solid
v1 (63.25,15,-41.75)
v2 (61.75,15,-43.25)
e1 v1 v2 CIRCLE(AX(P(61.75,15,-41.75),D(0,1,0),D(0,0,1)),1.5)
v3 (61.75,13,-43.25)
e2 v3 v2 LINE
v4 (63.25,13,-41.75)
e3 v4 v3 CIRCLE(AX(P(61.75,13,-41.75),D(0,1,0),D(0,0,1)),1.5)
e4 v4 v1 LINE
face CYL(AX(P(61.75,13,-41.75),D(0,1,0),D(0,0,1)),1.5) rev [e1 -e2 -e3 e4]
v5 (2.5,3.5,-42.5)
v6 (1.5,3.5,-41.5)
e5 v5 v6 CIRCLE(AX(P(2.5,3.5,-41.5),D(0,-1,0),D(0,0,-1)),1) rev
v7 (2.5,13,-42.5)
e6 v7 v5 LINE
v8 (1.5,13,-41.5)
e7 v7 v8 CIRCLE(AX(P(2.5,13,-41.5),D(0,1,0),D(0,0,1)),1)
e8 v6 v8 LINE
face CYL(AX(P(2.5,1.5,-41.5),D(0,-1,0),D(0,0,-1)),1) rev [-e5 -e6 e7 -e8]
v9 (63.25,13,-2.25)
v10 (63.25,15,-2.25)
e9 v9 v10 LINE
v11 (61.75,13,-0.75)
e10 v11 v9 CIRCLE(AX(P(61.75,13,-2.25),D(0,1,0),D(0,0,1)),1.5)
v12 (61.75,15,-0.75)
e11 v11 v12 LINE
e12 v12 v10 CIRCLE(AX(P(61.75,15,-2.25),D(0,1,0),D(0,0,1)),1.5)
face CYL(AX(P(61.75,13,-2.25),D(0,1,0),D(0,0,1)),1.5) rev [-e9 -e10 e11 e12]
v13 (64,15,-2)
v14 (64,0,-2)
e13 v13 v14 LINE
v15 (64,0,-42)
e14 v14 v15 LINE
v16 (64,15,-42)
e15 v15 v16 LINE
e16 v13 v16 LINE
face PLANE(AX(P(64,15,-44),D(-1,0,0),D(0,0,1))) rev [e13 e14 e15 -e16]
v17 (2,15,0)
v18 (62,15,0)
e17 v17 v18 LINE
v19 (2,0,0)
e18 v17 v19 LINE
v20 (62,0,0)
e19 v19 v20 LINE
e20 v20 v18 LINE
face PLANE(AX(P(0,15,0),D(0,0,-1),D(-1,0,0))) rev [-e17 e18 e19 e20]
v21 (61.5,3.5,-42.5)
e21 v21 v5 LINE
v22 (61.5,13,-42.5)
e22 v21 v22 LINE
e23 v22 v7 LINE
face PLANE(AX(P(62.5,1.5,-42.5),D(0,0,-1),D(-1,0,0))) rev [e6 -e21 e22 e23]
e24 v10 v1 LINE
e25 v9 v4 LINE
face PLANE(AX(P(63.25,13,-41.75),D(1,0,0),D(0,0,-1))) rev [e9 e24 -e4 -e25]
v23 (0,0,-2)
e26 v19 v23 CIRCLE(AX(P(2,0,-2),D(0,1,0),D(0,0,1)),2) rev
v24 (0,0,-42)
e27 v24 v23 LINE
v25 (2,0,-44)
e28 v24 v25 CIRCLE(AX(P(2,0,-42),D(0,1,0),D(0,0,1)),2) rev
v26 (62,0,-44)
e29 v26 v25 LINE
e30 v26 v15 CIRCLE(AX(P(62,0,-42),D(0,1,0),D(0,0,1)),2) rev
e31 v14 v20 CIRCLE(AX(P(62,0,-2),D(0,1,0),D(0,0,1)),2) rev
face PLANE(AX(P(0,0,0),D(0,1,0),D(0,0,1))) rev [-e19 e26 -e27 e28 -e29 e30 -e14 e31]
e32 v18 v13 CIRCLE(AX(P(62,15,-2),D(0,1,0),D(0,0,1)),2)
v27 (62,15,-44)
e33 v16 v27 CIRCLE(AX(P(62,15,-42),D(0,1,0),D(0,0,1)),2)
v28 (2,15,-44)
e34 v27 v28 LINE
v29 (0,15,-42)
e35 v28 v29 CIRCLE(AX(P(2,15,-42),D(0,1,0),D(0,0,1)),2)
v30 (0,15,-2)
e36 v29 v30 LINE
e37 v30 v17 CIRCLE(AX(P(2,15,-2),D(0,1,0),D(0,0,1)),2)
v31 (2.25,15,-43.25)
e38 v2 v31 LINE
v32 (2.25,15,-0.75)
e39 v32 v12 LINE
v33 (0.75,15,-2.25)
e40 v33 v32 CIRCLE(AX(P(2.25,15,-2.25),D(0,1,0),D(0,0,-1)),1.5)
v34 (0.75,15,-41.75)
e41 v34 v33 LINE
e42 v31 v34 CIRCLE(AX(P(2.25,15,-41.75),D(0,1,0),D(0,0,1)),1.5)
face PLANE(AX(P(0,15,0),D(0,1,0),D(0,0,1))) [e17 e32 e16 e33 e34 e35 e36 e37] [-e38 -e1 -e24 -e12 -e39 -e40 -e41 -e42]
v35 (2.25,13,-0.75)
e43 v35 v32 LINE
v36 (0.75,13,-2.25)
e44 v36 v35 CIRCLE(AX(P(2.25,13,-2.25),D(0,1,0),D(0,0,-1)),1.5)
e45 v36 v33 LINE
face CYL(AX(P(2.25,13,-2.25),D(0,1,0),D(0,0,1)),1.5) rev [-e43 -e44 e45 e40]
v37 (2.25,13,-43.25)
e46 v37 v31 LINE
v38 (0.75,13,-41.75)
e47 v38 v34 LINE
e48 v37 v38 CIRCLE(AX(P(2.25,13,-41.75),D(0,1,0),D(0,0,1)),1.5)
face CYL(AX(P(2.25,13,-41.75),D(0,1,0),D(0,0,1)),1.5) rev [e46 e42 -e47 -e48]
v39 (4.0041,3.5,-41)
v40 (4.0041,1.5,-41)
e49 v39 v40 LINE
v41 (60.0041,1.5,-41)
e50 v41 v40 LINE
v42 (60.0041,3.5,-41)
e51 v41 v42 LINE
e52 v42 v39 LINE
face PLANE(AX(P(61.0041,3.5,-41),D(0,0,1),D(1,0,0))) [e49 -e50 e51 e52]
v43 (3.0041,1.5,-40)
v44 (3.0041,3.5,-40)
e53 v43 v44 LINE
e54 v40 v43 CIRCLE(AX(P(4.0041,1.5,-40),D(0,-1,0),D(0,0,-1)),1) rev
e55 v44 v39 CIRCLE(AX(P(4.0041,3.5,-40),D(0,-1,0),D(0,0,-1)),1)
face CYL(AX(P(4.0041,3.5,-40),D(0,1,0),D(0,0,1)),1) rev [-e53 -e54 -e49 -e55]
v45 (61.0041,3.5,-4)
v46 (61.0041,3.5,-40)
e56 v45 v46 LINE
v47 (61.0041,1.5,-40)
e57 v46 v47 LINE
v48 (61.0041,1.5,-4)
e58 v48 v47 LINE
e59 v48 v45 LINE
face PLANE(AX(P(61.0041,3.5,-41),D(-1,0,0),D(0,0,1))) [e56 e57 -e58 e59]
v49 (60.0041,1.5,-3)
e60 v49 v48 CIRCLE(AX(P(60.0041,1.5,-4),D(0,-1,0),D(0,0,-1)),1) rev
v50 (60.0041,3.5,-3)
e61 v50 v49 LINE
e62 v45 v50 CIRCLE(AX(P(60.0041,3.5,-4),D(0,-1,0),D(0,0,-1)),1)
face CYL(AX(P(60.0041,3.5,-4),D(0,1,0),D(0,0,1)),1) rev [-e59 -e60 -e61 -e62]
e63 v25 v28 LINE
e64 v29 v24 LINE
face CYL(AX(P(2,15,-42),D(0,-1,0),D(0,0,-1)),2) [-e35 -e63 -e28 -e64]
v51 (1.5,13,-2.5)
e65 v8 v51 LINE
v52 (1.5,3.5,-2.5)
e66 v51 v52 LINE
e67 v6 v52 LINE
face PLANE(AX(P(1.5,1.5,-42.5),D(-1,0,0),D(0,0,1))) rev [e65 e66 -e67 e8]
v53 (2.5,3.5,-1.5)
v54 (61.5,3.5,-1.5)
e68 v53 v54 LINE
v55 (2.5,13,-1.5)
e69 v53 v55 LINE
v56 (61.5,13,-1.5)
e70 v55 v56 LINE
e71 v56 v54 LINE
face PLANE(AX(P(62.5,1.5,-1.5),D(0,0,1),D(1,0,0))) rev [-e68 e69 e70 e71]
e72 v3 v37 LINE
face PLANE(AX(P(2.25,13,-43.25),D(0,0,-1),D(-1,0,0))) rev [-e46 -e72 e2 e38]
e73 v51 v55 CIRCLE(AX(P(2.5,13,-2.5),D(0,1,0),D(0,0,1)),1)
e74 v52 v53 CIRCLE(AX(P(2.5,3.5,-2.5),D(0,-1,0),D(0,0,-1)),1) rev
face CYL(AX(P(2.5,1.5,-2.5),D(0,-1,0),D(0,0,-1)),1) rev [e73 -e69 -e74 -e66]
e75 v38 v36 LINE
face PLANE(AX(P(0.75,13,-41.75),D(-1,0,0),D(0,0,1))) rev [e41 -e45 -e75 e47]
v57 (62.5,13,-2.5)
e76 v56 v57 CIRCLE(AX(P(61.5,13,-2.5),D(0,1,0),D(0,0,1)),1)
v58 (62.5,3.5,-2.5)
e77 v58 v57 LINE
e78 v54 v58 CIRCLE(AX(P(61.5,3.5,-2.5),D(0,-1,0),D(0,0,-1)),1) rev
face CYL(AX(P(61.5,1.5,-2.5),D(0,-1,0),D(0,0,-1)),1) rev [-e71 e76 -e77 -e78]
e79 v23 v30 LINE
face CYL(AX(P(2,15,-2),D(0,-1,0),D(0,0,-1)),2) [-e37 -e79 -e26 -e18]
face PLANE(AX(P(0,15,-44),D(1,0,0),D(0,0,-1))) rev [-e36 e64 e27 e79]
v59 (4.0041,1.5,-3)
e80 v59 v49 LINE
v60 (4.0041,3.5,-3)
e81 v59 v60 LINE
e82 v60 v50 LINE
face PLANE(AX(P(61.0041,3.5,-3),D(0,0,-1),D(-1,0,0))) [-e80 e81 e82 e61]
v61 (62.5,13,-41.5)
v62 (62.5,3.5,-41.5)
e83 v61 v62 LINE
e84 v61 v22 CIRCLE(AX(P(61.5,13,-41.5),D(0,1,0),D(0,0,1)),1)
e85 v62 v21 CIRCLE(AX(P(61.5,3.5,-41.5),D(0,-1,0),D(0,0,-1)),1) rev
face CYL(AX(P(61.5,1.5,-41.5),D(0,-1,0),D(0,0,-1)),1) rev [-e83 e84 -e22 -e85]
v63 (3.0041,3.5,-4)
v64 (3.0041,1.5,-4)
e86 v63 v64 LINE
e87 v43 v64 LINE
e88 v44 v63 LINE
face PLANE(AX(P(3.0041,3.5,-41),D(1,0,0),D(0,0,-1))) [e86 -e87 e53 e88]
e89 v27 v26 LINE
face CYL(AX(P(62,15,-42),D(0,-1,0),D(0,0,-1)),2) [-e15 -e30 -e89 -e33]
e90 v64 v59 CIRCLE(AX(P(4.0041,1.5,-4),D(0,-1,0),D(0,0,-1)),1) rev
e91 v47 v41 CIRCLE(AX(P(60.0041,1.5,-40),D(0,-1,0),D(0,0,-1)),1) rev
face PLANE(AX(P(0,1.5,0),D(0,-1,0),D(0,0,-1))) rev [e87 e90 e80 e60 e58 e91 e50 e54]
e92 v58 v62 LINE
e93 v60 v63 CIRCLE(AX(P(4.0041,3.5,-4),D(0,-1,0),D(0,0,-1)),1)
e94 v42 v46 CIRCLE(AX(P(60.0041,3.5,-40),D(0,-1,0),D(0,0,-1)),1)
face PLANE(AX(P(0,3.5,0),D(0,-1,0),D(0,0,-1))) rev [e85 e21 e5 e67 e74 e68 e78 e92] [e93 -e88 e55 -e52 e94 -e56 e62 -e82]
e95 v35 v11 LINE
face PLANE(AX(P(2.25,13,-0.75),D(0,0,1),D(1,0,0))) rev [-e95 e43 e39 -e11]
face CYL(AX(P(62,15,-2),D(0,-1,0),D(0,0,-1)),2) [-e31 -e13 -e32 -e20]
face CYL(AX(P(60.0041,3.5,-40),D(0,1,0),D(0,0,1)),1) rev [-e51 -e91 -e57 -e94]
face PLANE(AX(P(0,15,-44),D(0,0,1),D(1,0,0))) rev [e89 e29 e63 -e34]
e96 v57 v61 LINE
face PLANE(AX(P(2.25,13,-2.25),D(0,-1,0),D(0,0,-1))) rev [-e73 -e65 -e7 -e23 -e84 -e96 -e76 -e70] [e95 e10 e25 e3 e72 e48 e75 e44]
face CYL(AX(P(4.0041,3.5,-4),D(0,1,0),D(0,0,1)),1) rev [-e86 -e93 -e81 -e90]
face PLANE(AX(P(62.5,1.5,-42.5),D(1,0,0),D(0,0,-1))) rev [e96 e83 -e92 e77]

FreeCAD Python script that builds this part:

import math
import FreeCAD as App
import Part
import Sketcher


def edges_at(feature, points):
    """Names of the edges that pass closest to the given points."""
    edges = feature.Shape.Edges
    near = lambda p: min(range(len(edges)), key=lambda i: edges[i].distToShape(Part.Vertex(*p))[0])
    return sorted({f"Edge{near(p) + 1}" for p in points})


def add_polygon(sketch, points):
    """Adds a closed chain of lines whose ends are joined by coincident constraints."""
    first, n = sketch.GeometryCount, len(points)
    for a, b in zip(points, points[1:] + points[:1]):
        sketch.addGeometry(Part.LineSegment(App.Vector(*a, 0), App.Vector(*b, 0)), False)
    for i in range(n):
        sketch.addConstraint(Sketcher.Constraint("Coincident", first + i, 2, first + (i + 1) % n, 1))

doc = App.newDocument("Part")
params = doc.addObject("Spreadsheet::Sheet", "Params")
for row, (alias, value) in enumerate([
    ("sketch1_width", "64 mm"),
    ("sketch1_height", "44 mm"),
    ("pad1_length", "15 mm"),
    ("sketch2_width", "61 mm"),
    ("sketch2_height", "41 mm"),
    ("pocket1_length", "13.5 mm"),
    ("sketch3_width", "61 mm"),
    ("sketch3_width2", "58 mm"),
    ("sketch3_height", "41 mm"),
    ("sketch3_height2", "38 mm"),
    ("pad2_length", "2 mm"),
    ("fillet_radius", "1 mm"),
    ("fillet2_radius", "2 mm"),
    ("sketch4_radius", "1 mm"),
    ("sketch4_radius2", "1.5 mm"),
    ("sketch4_width", "59 mm"),
    ("sketch4_height", "39 mm"),
    ("sketch4_width2", "59.5 mm"),
    ("pocket2_length", "2 mm"),
], start=1):
    params.set(f"A{row}", alias)
    params.set(f"B{row}", "=" + value)
    params.setAlias(f"B{row}", alias)

body = doc.addObject("PartDesign::Body", "Body")

# Sketch on XZ plane
sketch1 = body.newObject("Sketcher::SketchObject", "Sketch")
sketch1.AttachmentSupport = (doc.getObject("XZ_Plane"), [""])
sketch1.MapMode = "FlatFace"
add_polygon(sketch1, [(0, -44), (0, 0), (64, 0), (64, -44)])  # lines 0-3
sketch1.addConstraint([
    Sketcher.Constraint("Vertical", 0),
    Sketcher.Constraint("Horizontal", 1),
    Sketcher.Constraint("Vertical", 2),
    Sketcher.Constraint("Horizontal", 3),
    Sketcher.Constraint("Coincident", 0, 2, -1, 1),
    Sketcher.Constraint("DistanceX", 1, 1, 1, 2, 64.0),
    Sketcher.Constraint("DistanceY", 0, 1, 0, 2, 44.0),
])
sketch1.setExpression("Constraints[9]", "Params.sketch1_width")
sketch1.setExpression("Constraints[10]", "Params.sketch1_height")
pad1 = body.newObject("PartDesign::Pad", "Pad")
pad1.Profile = sketch1
pad1.setExpression("Length", "Params.pad1_length")
pad1.Reversed = True

# Sketch on XZ plane
sketch2 = body.newObject("Sketcher::SketchObject", "Sketch001")
sketch2.AttachmentSupport = (doc.getObject("XZ_Plane"), [""])
sketch2.MapMode = "FlatFace"
sketch2.AttachmentOffset = App.Placement(App.Vector(0, 0, -15), App.Rotation())
add_polygon(sketch2, [(2, -42), (2, -2), (62, -2), (62, -42)])  # lines 0-3
sketch2.addConstraint([
    Sketcher.Constraint("Vertical", 0),
    Sketcher.Constraint("Horizontal", 1),
    Sketcher.Constraint("Vertical", 2),
    Sketcher.Constraint("Horizontal", 3),
    Sketcher.Constraint("DistanceX", 1, 1, 1, 2, 61.0),
    Sketcher.Constraint("DistanceY", 0, 1, 0, 2, 41.0),
    Sketcher.Constraint("DistanceX", -1, 1, 0, 2, 1.5),
    Sketcher.Constraint("DistanceY", 0, 2, -1, 1, 1.5),
])
sketch2.setExpression("Constraints[8]", "Params.sketch2_width")
sketch2.setExpression("Constraints[9]", "Params.sketch2_height")
pocket1 = body.newObject("PartDesign::Pocket", "Pocket")
pocket1.Profile = sketch2
pocket1.setExpression("Length", "Params.pocket1_length")
pocket1.Reversed = True

# Sketch on XZ plane
sketch3 = body.newObject("Sketcher::SketchObject", "Sketch002")
sketch3.AttachmentSupport = (doc.getObject("XZ_Plane"), [""])
sketch3.MapMode = "FlatFace"
sketch3.AttachmentOffset = App.Placement(App.Vector(0, 0, -1.5), App.Rotation())
add_polygon(sketch3, [(2, -42), (2, -2), (62, -2), (62, -42)])  # lines 0-3
add_polygon(sketch3, [(61, -3), (3, -3), (3, -41), (61, -41)])  # lines 4-7
sketch3.addConstraint([
    Sketcher.Constraint("Vertical", 0),
    Sketcher.Constraint("Horizontal", 1),
    Sketcher.Constraint("Vertical", 2),
    Sketcher.Constraint("Horizontal", 3),
    Sketcher.Constraint("Horizontal", 4),
    Sketcher.Constraint("Vertical", 5),
    Sketcher.Constraint("Horizontal", 6),
    Sketcher.Constraint("Vertical", 7),
    Sketcher.Constraint("DistanceX", 1, 1, 1, 2, 61.0),
    Sketcher.Constraint("DistanceX", 4, 2, 4, 1, 58.0),
    Sketcher.Constraint("DistanceY", 0, 1, 0, 2, 41.0),
    Sketcher.Constraint("DistanceY", 5, 2, 5, 1, 38.0),
    Sketcher.Constraint("DistanceY", 4, 2, -1, 1, 3.0),
    Sketcher.Constraint("DistanceX", -1, 1, 0, 2, 1.5),
    Sketcher.Constraint("DistanceY", 0, 2, -1, 1, 1.5),
    Sketcher.Constraint("DistanceX", -1, 1, 4, 2, 3.0041),
])
sketch3.setExpression("Constraints[16]", "Params.sketch3_width")
sketch3.setExpression("Constraints[17]", "Params.sketch3_width2")
sketch3.setExpression("Constraints[18]", "Params.sketch3_height")
sketch3.setExpression("Constraints[19]", "Params.sketch3_height2")
pad2 = body.newObject("PartDesign::Pad", "Pad001")
pad2.Profile = sketch3
pad2.setExpression("Length", "Params.pad2_length")
pad2.Reversed = True
doc.recompute()

fillet = body.newObject("PartDesign::Fillet", "Fillet")
fillet.Base = (pad2, edges_at(pad2, [
    (1.5, 9.25, -42.5),
    (62.5, 9.25, -42.5),
    (1.5, 9.25, -1.5),
    (62.5, 9.25, -1.5),
    (61.004, 2.5, -41),
    (3.004, 2.5, -41),
    (3.004, 2.5, -3),
    (61.004, 2.5, -3),
]))
fillet.setExpression("Radius", "Params.fillet_radius")
doc.recompute()

fillet2 = body.newObject("PartDesign::Fillet", "Fillet001")
fillet2.Base = (fillet, edges_at(fillet, [
    (0, 7.5, -44),
    (64, 7.5, -44),
    (64, 7.5, 0),
    (0, 7.5, 0),
]))
fillet2.setExpression("Radius", "Params.fillet2_radius")

# Sketch on XZ plane
sketch4 = body.newObject("Sketcher::SketchObject", "Sketch003")
sketch4.AttachmentSupport = (doc.getObject("XZ_Plane"), [""])
sketch4.MapMode = "FlatFace"
sketch4.AttachmentOffset = App.Placement(App.Vector(0, 0, -15), App.Rotation())
sketch4.addGeometry([
    Part.LineSegment(App.Vector(61.8, -43.2, 0), App.Vector(2.2, -43.2, 0)),  # 0
    Part.ArcOfCircle(Part.Circle(App.Vector(2.2, -41.8, 0), App.Vector(0, 0, 1), 1.5), math.radians(180), math.radians(270)),  # 1
    Part.LineSegment(App.Vector(0.8, -41.8, 0), App.Vector(0.8, -2.2, 0)),  # 2
    Part.ArcOfCircle(Part.Circle(App.Vector(2.2, -2.2, 0), App.Vector(0, 0, 1), 1.5), math.radians(90), math.radians(180)),  # 3
    Part.LineSegment(App.Vector(2.2, -0.8, 0), App.Vector(61.8, -0.8, 0)),  # 4
    Part.ArcOfCircle(Part.Circle(App.Vector(61.8, -2.2, 0), App.Vector(0, 0, 1), 1.5), math.radians(0), math.radians(90)),  # 5
    Part.LineSegment(App.Vector(63.2, -2.2, 0), App.Vector(63.2, -41.8, 0)),  # 6
    Part.ArcOfCircle(Part.Circle(App.Vector(61.8, -41.8, 0), App.Vector(0, 0, 1), 1.5), math.radians(-90), math.radians(0)),  # 7
    Part.ArcOfCircle(Part.Circle(App.Vector(61.5, -41.5, 0), App.Vector(0, 0, 1), 1), math.radians(-90), math.radians(0)),  # 8
    Part.LineSegment(App.Vector(62.5, -41.5, 0), App.Vector(62.5, -2.5, 0)),  # 9
    Part.ArcOfCircle(Part.Circle(App.Vector(61.5, -2.5, 0), App.Vector(0, 0, 1), 1), math.radians(0), math.radians(90)),  # 10
    Part.LineSegment(App.Vector(61.5, -1.5, 0), App.Vector(2.5, -1.5, 0)),  # 11
    Part.ArcOfCircle(Part.Circle(App.Vector(2.5, -2.5, 0), App.Vector(0, 0, 1), 1), math.radians(90), math.radians(180)),  # 12
    Part.LineSegment(App.Vector(1.5, -2.5, 0), App.Vector(1.5, -41.5, 0)),  # 13
    Part.ArcOfCircle(Part.Circle(App.Vector(2.5, -41.5, 0), App.Vector(0, 0, 1), 1), math.radians(-180), math.radians(-90)),  # 14
    Part.LineSegment(App.Vector(2.5, -42.5, 0), App.Vector(61.5, -42.5, 0)),  # 15
], False)
sketch4.addConstraint([
    Sketcher.Constraint("Tangent", 0, 2, 1, 2),
    Sketcher.Constraint("Tangent", 1, 1, 2, 1),
    Sketcher.Constraint("Tangent", 2, 2, 3, 2),
    Sketcher.Constraint("Tangent", 3, 1, 4, 1),
    Sketcher.Constraint("Tangent", 4, 2, 5, 2),
    Sketcher.Constraint("Tangent", 5, 1, 6, 1),
    Sketcher.Constraint("Tangent", 6, 2, 7, 2),
    Sketcher.Constraint("Tangent", 7, 1, 0, 1),
    Sketcher.Constraint("Tangent", 8, 2, 9, 1),
    Sketcher.Constraint("Tangent", 9, 2, 10, 1),
    Sketcher.Constraint("Tangent", 10, 2, 11, 1),
    Sketcher.Constraint("Tangent", 11, 2, 12, 1),
    Sketcher.Constraint("Tangent", 12, 2, 13, 1),
    Sketcher.Constraint("Tangent", 13, 2, 14, 1),
    Sketcher.Constraint("Tangent", 14, 2, 15, 1),
    Sketcher.Constraint("Tangent", 15, 2, 8, 1),
    Sketcher.Constraint("Horizontal", 0),
    Sketcher.Constraint("Vertical", 2),
    Sketcher.Constraint("Horizontal", 4),
    Sketcher.Constraint("Vertical", 6),
    Sketcher.Constraint("Vertical", 9),
    Sketcher.Constraint("Horizontal", 11),
    Sketcher.Constraint("Vertical", 13),
    Sketcher.Constraint("Horizontal", 15),
    Sketcher.Constraint("Equal", 1, 3),
    Sketcher.Constraint("Equal", 3, 5),
    Sketcher.Constraint("Equal", 5, 7),
    Sketcher.Constraint("Equal", 8, 10),
    Sketcher.Constraint("Equal", 10, 12),
    Sketcher.Constraint("Equal", 12, 14),
    Sketcher.Constraint("Radius", 8, 1.0),
    Sketcher.Constraint("Radius", 1, 1.5),
    Sketcher.Constraint("DistanceX", 11, 2, 11, 1, 59.0),
    Sketcher.Constraint("DistanceY", 9, 1, 9, 2, 39.0),
    Sketcher.Constraint("DistanceX", 0, 2, 0, 1, 59.5),
    Sketcher.Constraint("DistanceY", 2, 1, 2, 2, 39.5),
    Sketcher.Constraint("DistanceX", -1, 1, 8, 3, 61.5),
    Sketcher.Constraint("DistanceY", 8, 3, -1, 1, 41.5),
    Sketcher.Constraint("DistanceX", -1, 1, 1, 3, 2.25),
    Sketcher.Constraint("DistanceY", 1, 3, -1, 1, 41.75),
])
sketch4.setExpression("Constraints[30]", "Params.sketch4_radius")
sketch4.setExpression("Constraints[31]", "Params.sketch4_radius2")
sketch4.setExpression("Constraints[32]", "Params.sketch4_width")
sketch4.setExpression("Constraints[33]", "Params.sketch4_height")
sketch4.setExpression("Constraints[34]", "Params.sketch4_width2")
pocket2 = body.newObject("PartDesign::Pocket", "Pocket001")
pocket2.Profile = sketch4
pocket2.setExpression("Length", "Params.pocket2_length")
pocket2.Reversed = True

doc.recompute()
